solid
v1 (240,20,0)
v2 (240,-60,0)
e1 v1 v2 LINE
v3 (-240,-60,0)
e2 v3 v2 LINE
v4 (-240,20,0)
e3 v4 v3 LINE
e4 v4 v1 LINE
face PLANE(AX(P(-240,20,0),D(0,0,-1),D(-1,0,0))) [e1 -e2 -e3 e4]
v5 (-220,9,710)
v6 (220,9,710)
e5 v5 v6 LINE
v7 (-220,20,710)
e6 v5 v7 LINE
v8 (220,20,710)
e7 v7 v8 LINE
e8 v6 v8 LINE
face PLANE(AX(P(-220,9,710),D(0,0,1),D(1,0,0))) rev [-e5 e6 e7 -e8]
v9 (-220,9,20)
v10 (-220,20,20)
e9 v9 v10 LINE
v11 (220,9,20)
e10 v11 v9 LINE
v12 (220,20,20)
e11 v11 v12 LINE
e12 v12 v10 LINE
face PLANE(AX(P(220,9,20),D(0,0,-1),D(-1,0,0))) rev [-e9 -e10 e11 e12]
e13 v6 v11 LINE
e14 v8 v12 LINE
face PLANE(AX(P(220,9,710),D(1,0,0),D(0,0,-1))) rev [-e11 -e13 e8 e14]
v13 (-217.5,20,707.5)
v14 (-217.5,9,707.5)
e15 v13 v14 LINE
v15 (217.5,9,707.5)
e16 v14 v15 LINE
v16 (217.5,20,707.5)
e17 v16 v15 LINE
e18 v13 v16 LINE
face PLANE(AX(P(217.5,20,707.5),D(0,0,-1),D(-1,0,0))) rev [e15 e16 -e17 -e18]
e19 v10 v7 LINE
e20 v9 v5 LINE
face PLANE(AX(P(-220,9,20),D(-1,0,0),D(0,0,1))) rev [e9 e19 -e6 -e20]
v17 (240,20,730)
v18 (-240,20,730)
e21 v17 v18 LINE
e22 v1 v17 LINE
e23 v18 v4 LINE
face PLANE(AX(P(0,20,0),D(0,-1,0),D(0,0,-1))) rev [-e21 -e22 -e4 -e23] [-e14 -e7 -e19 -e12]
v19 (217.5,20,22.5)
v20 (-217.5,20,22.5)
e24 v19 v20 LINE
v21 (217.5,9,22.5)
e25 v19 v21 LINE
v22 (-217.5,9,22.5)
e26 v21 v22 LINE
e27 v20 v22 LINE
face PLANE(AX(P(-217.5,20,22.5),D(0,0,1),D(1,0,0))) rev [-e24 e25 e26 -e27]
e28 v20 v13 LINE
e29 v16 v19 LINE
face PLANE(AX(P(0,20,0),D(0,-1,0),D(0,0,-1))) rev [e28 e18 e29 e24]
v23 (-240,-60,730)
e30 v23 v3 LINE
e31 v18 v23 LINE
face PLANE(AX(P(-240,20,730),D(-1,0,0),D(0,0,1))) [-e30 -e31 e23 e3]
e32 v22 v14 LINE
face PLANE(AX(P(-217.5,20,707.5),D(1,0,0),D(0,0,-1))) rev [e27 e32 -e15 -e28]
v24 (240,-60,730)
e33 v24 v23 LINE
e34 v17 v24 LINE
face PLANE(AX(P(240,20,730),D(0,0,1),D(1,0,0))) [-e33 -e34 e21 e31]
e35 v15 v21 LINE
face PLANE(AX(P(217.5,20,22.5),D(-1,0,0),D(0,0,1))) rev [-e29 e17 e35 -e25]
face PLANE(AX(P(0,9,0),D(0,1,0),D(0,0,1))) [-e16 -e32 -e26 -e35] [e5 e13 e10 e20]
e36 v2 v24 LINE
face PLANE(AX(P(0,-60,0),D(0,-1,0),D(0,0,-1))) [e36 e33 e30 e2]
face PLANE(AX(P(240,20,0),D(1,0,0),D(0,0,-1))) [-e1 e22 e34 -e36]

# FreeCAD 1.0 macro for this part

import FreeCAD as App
import Part
import Sketcher
Q = App.Units.Quantity


def add_polygon(sketch, points):
    """Adds a closed chain of lines whose ends are joined by coincident constraints."""
    first, n = sketch.GeometryCount, len(points)
    for a, b in zip(points, points[1:] + points[:1]):
        sketch.addGeometry(Part.LineSegment(App.Vector(*a, 0), App.Vector(*b, 0)), False)
    for i in range(n):
        sketch.addConstraint(Sketcher.Constraint("Coincident", first + i, 2, first + (i + 1) % n, 1))

doc = App.newDocument("Part")
body = doc.addObject("PartDesign::Body", "Body")

sketch1 = body.newObject("Sketcher::SketchObject", "Sketch")
sketch1.AttachmentSupport = (doc.getObject("XZ_Plane"), [""])
sketch1.MapMode = "FlatFace"
sketch1.AttachmentOffset = App.Placement(App.Vector(0, 0, 60), App.Rotation())
add_polygon(sketch1, [(-240, 730), (-240, 0), (240, 0), (240, 730)])
sketch1.addConstraint([
    Sketcher.Constraint("Vertical", 0),
    Sketcher.Constraint("Horizontal", 1),
    Sketcher.Constraint("Vertical", 2),
    Sketcher.Constraint("Horizontal", 3),
    Sketcher.Constraint("Symmetric", 0, 2, 1, 2, -1, 1),
    Sketcher.Constraint("DistanceX", 1, 1, 1, 2, Q("480 mm")),
    Sketcher.Constraint("DistanceY", 0, 2, 0, 1, Q("730 mm")),
])
pad1 = body.newObject("PartDesign::Pad", "Pad")
pad1.Profile = sketch1
pad1.Length = 80
pad1.Reversed = True

sketch2 = body.newObject("Sketcher::SketchObject", "Sketch001")
sketch2.AttachmentSupport = (doc.getObject("XZ_Plane"), [""])
sketch2.MapMode = "FlatFace"
sketch2.AttachmentOffset = App.Placement(App.Vector(0, 0, -20), App.Rotation())
add_polygon(sketch2, [(220, 710), (220, 20), (-220, 20), (-220, 710)])
sketch2.addConstraint([
    Sketcher.Constraint("Vertical", 0),
    Sketcher.Constraint("Horizontal", 1),
    Sketcher.Constraint("Vertical", 2),
    Sketcher.Constraint("Horizontal", 3),
    Sketcher.Constraint("DistanceX", 1, 2, 1, 1, Q("440 mm")),
    Sketcher.Constraint("DistanceY", 0, 2, 0, 1, Q("690 mm")),
    Sketcher.Constraint("DistanceX", -1, 1, 0, 2, Q("220 mm")),
    Sketcher.Constraint("DistanceY", -1, 1, 0, 2, Q("20 mm")),
])
pocket1 = body.newObject("PartDesign::Pocket", "Pocket")
pocket1.Profile = sketch2
pocket1.Length = 11
pocket1.Reversed = True

sketch3 = body.newObject("Sketcher::SketchObject", "Sketch002")
sketch3.AttachmentSupport = (doc.getObject("XZ_Plane"), [""])
sketch3.MapMode = "FlatFace"
sketch3.AttachmentOffset = App.Placement(App.Vector(0, 0, -9), App.Rotation())
add_polygon(sketch3, [(218, 708), (218, 22), (-218, 22), (-218, 708)])
sketch3.addConstraint([
    Sketcher.Constraint("Vertical", 0),
    Sketcher.Constraint("Horizontal", 1),
    Sketcher.Constraint("Vertical", 2),
    Sketcher.Constraint("Horizontal", 3),
    Sketcher.Constraint("DistanceX", 1, 2, 1, 1, Q("435 mm")),
    Sketcher.Constraint("DistanceY", 0, 2, 0, 1, Q("685 mm")),
    Sketcher.Constraint("DistanceX", -1, 1, 0, 2, Q("217.5 mm")),
    Sketcher.Constraint("DistanceY", -1, 1, 0, 2, Q("22.5 mm")),
])
pad2 = body.newObject("PartDesign::Pad", "Pad001")
pad2.Profile = sketch3
pad2.Length = 11
pad2.Reversed = True

doc.recompute()
